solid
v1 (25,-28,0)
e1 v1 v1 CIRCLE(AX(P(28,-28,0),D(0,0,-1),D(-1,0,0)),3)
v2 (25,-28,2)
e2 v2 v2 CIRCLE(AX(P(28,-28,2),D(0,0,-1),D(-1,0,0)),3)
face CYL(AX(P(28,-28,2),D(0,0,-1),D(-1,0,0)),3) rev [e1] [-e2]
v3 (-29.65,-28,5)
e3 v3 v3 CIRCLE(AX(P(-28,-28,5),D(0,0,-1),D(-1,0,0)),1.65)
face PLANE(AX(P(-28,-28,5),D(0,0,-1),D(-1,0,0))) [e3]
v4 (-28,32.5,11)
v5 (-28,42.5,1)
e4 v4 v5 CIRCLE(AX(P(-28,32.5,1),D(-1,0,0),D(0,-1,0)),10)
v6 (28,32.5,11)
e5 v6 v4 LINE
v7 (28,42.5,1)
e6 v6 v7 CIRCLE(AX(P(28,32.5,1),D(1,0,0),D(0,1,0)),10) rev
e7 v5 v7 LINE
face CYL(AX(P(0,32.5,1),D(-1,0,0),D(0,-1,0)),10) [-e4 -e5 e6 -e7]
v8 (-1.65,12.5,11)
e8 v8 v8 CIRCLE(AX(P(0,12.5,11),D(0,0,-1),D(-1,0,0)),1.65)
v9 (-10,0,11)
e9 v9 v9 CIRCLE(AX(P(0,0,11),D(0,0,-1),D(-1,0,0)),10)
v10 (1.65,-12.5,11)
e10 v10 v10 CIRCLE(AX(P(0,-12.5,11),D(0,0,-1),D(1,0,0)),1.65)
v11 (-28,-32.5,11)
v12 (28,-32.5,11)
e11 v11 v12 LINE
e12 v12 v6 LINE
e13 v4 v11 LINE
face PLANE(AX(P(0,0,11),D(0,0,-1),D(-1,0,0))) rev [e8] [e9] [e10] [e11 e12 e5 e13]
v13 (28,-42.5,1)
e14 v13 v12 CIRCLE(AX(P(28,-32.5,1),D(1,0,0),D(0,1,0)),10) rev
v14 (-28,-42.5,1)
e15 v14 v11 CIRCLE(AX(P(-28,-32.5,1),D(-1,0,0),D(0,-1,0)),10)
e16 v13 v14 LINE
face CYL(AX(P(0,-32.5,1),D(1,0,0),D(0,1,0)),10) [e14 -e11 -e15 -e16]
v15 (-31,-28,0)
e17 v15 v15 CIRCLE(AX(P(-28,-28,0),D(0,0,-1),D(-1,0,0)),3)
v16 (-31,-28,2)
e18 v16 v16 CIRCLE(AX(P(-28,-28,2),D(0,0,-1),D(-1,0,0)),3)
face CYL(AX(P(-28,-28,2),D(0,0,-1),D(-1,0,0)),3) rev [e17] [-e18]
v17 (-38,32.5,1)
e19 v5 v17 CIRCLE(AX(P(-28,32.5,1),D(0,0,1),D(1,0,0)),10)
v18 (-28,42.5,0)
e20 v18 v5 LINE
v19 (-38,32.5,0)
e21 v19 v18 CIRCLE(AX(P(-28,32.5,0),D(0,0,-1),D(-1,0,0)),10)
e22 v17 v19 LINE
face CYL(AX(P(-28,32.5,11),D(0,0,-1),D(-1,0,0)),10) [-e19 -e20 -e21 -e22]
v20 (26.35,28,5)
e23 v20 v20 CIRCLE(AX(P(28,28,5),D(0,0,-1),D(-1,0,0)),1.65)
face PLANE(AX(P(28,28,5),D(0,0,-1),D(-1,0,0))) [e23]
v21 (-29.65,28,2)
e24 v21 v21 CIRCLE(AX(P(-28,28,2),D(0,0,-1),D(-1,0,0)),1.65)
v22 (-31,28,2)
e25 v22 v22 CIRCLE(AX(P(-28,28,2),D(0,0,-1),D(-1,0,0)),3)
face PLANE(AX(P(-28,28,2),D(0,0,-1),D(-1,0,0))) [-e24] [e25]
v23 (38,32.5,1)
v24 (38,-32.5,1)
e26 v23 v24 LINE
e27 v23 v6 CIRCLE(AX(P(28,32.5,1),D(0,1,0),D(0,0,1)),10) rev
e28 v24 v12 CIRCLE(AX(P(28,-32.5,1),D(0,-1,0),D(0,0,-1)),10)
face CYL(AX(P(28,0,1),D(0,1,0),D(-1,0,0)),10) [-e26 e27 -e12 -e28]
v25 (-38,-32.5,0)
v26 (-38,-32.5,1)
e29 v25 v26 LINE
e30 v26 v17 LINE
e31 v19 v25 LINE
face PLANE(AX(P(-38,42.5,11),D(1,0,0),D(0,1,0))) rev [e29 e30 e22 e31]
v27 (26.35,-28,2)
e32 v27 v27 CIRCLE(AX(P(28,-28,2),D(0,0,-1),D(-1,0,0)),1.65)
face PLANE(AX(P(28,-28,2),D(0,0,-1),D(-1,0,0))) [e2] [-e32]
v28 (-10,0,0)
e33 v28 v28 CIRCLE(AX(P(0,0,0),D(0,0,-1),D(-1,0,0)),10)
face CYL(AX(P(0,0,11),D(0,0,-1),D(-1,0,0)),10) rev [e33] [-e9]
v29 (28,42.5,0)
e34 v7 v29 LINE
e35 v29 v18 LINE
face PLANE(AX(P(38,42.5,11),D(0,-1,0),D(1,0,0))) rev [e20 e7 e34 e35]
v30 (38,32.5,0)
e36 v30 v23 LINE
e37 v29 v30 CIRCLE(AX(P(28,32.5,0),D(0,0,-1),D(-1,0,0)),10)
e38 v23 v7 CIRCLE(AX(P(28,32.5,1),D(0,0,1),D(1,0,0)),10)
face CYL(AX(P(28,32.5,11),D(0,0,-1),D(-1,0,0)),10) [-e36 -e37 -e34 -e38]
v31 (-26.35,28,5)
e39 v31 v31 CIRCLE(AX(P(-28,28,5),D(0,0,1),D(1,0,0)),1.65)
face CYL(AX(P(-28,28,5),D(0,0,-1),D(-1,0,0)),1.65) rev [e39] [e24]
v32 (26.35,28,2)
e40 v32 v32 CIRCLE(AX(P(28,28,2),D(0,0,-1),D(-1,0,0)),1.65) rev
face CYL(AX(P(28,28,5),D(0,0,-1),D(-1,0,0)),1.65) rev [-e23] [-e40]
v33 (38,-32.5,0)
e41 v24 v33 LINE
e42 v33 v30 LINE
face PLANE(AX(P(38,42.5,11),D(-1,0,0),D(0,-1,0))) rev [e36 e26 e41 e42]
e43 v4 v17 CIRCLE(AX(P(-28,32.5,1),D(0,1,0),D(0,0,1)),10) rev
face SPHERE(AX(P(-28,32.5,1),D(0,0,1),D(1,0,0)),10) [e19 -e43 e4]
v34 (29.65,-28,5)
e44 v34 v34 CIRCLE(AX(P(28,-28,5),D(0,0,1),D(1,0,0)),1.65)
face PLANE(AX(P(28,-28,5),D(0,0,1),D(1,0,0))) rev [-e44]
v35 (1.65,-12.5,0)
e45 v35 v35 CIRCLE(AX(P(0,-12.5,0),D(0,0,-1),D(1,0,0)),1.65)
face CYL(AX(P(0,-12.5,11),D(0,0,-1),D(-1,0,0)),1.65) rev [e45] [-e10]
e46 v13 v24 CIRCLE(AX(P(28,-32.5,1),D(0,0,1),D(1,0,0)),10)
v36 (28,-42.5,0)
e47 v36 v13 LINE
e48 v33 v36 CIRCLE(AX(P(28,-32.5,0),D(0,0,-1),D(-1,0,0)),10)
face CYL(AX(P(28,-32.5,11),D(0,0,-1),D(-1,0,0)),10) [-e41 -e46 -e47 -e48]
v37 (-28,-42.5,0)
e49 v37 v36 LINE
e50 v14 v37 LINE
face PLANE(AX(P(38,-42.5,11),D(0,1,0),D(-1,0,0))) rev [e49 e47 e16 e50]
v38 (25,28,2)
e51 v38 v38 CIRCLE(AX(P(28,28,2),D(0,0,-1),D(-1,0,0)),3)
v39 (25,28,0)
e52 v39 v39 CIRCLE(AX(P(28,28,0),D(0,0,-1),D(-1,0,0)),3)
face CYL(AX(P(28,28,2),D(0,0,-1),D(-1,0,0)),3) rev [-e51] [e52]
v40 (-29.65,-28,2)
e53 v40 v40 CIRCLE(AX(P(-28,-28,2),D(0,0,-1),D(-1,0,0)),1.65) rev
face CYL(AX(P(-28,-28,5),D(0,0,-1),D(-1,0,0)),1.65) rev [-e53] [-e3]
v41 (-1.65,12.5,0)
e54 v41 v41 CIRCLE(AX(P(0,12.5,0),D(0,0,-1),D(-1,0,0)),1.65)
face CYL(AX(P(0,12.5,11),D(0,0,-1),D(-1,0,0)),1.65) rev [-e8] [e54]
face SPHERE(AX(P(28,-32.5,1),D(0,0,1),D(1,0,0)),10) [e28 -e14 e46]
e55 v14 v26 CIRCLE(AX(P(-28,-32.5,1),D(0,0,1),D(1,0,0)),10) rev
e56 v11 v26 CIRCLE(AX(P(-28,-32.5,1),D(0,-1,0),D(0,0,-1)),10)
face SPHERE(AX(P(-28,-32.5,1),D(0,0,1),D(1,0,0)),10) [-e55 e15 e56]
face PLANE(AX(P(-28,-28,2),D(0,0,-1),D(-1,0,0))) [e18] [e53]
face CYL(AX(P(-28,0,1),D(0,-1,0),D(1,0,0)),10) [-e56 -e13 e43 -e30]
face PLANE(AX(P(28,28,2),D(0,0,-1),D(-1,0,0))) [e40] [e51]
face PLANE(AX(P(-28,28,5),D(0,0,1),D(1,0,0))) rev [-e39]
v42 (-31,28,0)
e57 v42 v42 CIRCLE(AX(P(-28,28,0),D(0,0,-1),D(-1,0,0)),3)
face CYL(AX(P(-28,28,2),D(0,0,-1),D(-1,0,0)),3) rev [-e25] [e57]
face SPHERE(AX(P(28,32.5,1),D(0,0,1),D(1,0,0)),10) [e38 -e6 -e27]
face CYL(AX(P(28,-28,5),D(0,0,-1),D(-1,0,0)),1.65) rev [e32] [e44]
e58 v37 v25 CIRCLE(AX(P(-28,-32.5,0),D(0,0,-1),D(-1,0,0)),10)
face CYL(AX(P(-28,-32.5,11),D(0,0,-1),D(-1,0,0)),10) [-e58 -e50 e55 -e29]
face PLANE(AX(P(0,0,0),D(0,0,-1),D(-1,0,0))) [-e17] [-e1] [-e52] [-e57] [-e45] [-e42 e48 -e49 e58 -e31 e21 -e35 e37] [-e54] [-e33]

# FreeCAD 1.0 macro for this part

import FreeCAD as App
import Part
import Sketcher
from FreeCAD import Vector
Q = App.Units.Quantity


def edges_at(feature, points):
    """Names of the edges that pass closest to the given points."""
    edges = feature.Shape.Edges
    near = lambda p: min(range(len(edges)), key=lambda i: edges[i].distToShape(Part.Vertex(*p))[0])
    return sorted({f"Edge{near(p) + 1}" for p in points})

doc = App.newDocument("Part")
body = doc.addObject("PartDesign::Body", "Body")

# Sketch on XY plane
sketch1 = body.newObject("Sketcher::SketchObject", "Sketch")
sketch1.AttachmentSupport = (doc.getObject("XY_Plane"), [""])
sketch1.MapMode = "FlatFace"
sketch1.addGeometry([
    Part.LineSegment(Vector(-38, 42, 0), Vector(-38, -42, 0)),
    Part.LineSegment(Vector(-38, -42, 0), Vector(38, -42, 0)),
    Part.LineSegment(Vector(38, -42, 0), Vector(38, 42, 0)),
    Part.LineSegment(Vector(38, 42, 0), Vector(-38, 42, 0)),
], False)
sketch1.addConstraint([
    Sketcher.Constraint("Coincident", 0, 2, 1, 1),
    Sketcher.Constraint("Coincident", 1, 2, 2, 1),
    Sketcher.Constraint("Coincident", 2, 2, 3, 1),
    Sketcher.Constraint("Coincident", 3, 2, 0, 1),
    Sketcher.Constraint("Vertical", 0),
    Sketcher.Constraint("Horizontal", 1),
    Sketcher.Constraint("Vertical", 2),
    Sketcher.Constraint("Horizontal", 3),
    Sketcher.Constraint("Symmetric", 0, 2, 2, 2, -1, 1),
    Sketcher.Constraint("DistanceX", 1, 1, 1, 2, Q("76 mm")),
    Sketcher.Constraint("DistanceY", 0, 2, 0, 1, Q("85 mm")),
])
pad1 = body.newObject("PartDesign::Pad", "Pad")
pad1.Profile = sketch1
pad1.Length = 11

# Sketch on XY plane
sketch2 = body.newObject("Sketcher::SketchObject", "Sketch001")
sketch2.AttachmentSupport = (doc.getObject("XY_Plane"), [""])
sketch2.MapMode = "FlatFace"
sketch2.addGeometry([
    Part.Circle(Vector(-28, -28, 0), Vector(0, 0, 1), 1.6),
    Part.Circle(Vector(28, -28, 0), Vector(0, 0, 1), 1.6),
    Part.Circle(Vector(28, 28, 0), Vector(0, 0, 1), 1.6),
    Part.Circle(Vector(-28, 28, 0), Vector(0, 0, 1), 1.6),
], False)
sketch2.addConstraint([
    Sketcher.Constraint("Equal", 0, 1),
    Sketcher.Constraint("Equal", 1, 2),
    Sketcher.Constraint("Equal", 2, 3),
    Sketcher.Constraint("Symmetric", 0, 3, 2, 3, -1, 1),
    Sketcher.Constraint("Symmetric", 1, 3, 3, 3, -1, 1),
    Sketcher.Constraint("Symmetric", 0, 3, 1, 3, -2),
    Sketcher.Constraint("Diameter", 0, Q("3.3 mm")),
    Sketcher.Constraint("DistanceX", 0, 3, -1, 1, Q("28 mm")),
    Sketcher.Constraint("DistanceY", 0, 3, -1, 1, Q("28 mm")),
])
pocket1 = body.newObject("PartDesign::Pocket", "Pocket")
pocket1.Profile = sketch2
pocket1.Length = 5
pocket1.Reversed = True

# Sketch on XY plane
sketch3 = body.newObject("Sketcher::SketchObject", "Sketch002")
sketch3.AttachmentSupport = (doc.getObject("XY_Plane"), [""])
sketch3.MapMode = "FlatFace"
sketch3.addGeometry([
    Part.Circle(Vector(-28, 28, 0), Vector(0, 0, 1), 3),
    Part.Circle(Vector(-28, -28, 0), Vector(0, 0, 1), 3),
    Part.Circle(Vector(28, 28, 0), Vector(0, 0, 1), 3),
    Part.Circle(Vector(28, -28, 0), Vector(0, 0, 1), 3),
], False)
sketch3.addConstraint([
    Sketcher.Constraint("Equal", 0, 1),
    Sketcher.Constraint("Equal", 1, 2),
    Sketcher.Constraint("Equal", 2, 3),
    Sketcher.Constraint("Symmetric", 1, 3, 2, 3, -1, 1),
    Sketcher.Constraint("Symmetric", 0, 3, 3, 3, -1, 1),
    Sketcher.Constraint("Symmetric", 0, 3, 2, 3, -2),
    Sketcher.Constraint("Diameter", 0, Q("6 mm")),
    Sketcher.Constraint("DistanceX", 0, 3, -1, 1, Q("28 mm")),
    Sketcher.Constraint("DistanceY", -1, 1, 0, 3, Q("28 mm")),
])
pocket2 = body.newObject("PartDesign::Pocket", "Pocket001")
pocket2.Profile = sketch3
pocket2.Length = 2
pocket2.Reversed = True
doc.recompute()

fillet = body.newObject("PartDesign::Fillet", "Fillet")
fillet.Base = (pocket2, edges_at(pocket2, [
    (38, 0, 11),
    (0, 42.5, 11),
    (-38, 0, 11),
    (0, -42.5, 11),
    (-38, 42.5, 5.5),
    (38, 42.5, 5.5),
    (38, -42.5, 5.5),
    (-38, -42.5, 5.5),
]))
fillet.Radius = 10

# Sketch on XY plane
sketch4 = body.newObject("Sketcher::SketchObject", "Sketch003")
sketch4.AttachmentSupport = (doc.getObject("XY_Plane"), [""])
sketch4.MapMode = "FlatFace"
sketch4.addGeometry([
    Part.Circle(Vector(0, 0, 0), Vector(0, 0, 1), 10),
    Part.Circle(Vector(0, 12.5, 0), Vector(0, 0, 1), 1.6),
    Part.Circle(Vector(0, -12.5, 0), Vector(0, 0, 1), 1.6),
], False)
sketch4.addConstraint([
    Sketcher.Constraint("Coincident", 0, 3, -1, 1),
    Sketcher.Constraint("Equal", 1, 2),
    Sketcher.Constraint("Symmetric", 1, 3, 2, 3, -1, 1),
    Sketcher.Constraint("PointOnObject", 1, 3, -2),
    Sketcher.Constraint("Diameter", 0, Q("20 mm")),
    Sketcher.Constraint("Diameter", 1, Q("3.3 mm")),
    Sketcher.Constraint("DistanceY", 2, 3, 1, 3, Q("25 mm")),
])
pocket3 = body.newObject("PartDesign::Pocket", "Pocket002")
pocket3.Profile = sketch4
pocket3.Type = "ThroughAll"
pocket3.Reversed = True

doc.recompute()
